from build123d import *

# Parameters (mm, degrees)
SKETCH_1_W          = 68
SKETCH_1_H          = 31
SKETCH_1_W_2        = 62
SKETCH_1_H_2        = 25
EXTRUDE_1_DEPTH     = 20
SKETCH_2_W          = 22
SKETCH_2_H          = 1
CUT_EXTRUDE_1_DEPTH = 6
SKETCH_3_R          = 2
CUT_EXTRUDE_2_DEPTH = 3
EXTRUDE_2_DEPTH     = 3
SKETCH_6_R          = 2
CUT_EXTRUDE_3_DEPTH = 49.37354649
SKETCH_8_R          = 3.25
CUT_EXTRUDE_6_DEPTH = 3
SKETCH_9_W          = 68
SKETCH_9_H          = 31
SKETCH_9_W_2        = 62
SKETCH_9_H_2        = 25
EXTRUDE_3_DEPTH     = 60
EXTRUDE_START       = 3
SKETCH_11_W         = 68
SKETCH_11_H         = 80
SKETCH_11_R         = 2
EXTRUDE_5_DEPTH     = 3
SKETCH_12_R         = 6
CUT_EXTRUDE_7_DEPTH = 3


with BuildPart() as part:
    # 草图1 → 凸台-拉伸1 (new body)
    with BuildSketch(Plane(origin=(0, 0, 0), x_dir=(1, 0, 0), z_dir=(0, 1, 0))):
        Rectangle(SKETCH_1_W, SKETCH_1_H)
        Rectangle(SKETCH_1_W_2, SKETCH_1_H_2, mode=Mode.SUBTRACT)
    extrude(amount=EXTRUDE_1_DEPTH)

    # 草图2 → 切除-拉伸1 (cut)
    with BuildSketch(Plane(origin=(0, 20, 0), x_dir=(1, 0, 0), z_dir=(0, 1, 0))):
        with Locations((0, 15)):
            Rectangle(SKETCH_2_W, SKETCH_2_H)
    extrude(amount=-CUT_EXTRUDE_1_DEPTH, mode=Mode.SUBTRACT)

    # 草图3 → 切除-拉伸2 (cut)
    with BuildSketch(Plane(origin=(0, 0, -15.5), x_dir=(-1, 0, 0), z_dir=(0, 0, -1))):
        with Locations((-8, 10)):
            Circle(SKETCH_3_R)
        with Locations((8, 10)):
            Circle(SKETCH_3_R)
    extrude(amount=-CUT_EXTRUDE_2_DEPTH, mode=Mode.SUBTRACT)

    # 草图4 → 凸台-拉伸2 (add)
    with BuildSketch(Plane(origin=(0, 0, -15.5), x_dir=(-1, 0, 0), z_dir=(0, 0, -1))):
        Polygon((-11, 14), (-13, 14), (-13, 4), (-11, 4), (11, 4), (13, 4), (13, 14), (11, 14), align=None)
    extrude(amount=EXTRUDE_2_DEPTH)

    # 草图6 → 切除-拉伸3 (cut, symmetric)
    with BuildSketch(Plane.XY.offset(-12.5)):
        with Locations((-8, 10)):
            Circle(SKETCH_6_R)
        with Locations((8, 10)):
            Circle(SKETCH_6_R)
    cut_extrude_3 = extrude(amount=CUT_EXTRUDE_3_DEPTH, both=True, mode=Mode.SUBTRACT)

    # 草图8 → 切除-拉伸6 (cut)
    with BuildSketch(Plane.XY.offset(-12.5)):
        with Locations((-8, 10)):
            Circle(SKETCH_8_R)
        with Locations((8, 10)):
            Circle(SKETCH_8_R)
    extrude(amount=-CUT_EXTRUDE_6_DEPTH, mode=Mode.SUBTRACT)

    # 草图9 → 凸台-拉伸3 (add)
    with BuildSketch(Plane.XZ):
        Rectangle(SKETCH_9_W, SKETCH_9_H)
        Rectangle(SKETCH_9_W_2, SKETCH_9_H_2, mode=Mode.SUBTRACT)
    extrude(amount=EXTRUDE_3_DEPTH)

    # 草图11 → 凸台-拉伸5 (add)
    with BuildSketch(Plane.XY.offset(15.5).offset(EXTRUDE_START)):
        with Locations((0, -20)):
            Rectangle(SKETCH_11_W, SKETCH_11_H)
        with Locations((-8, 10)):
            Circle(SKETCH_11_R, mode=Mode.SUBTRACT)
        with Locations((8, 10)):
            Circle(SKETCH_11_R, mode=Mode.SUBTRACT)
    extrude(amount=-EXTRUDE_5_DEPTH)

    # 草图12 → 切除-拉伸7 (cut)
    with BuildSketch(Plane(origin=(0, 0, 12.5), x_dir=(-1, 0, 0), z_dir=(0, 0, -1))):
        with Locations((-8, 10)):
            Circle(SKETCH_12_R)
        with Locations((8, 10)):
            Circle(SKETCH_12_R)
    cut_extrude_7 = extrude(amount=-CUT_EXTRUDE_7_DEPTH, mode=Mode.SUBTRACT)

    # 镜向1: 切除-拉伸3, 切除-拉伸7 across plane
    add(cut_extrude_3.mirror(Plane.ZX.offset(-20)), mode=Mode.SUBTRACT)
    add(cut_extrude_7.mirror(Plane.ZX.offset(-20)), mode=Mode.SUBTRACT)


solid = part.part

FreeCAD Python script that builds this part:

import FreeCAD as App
import Part
import Sketcher
Q = App.Units.Quantity


def add_polygon(sketch, points):
    """Adds a closed chain of lines whose ends are joined by coincident constraints."""
    first, n = sketch.GeometryCount, len(points)
    for a, b in zip(points, points[1:] + points[:1]):
        sketch.addGeometry(Part.LineSegment(App.Vector(*a, 0), App.Vector(*b, 0)), False)
    for i in range(n):
        sketch.addConstraint(Sketcher.Constraint("Coincident", first + i, 2, first + (i + 1) % n, 1))

doc = App.newDocument("Part")
body = doc.addObject("PartDesign::Body", "Body")

# Sketch on XZ plane
sketch1 = doc.addObject("Sketcher::SketchObject", "Sketch")
body.addObject(sketch1)
sketch1.AttachmentSupport = (doc.XZ_Plane, [""])
sketch1.MapMode = "FlatFace"
add_polygon(sketch1, [(-34, -15.5), (-34, 15.5), (34, 15.5), (34, -15.5)])  # lines 0-3
add_polygon(sketch1, [(31, 12.5), (-31, 12.5), (-31, -12.5), (31, -12.5)])  # lines 4-7
sketch1.addConstraint(Sketcher.Constraint("Vertical", 0))
sketch1.addConstraint(Sketcher.Constraint("Horizontal", 1))
sketch1.addConstraint(Sketcher.Constraint("Vertical", 2))
sketch1.addConstraint(Sketcher.Constraint("Horizontal", 3))
sketch1.addConstraint(Sketcher.Constraint("Horizontal", 4))
sketch1.addConstraint(Sketcher.Constraint("Vertical", 5))
sketch1.addConstraint(Sketcher.Constraint("Horizontal", 6))
sketch1.addConstraint(Sketcher.Constraint("Vertical", 7))
sketch1.addConstraint(Sketcher.Constraint("Symmetric", 0, 2, 2, 2, -1, 1))
sketch1.addConstraint(Sketcher.Constraint("Symmetric", 4, 2, 6, 2, -1, 1))
sketch1.addConstraint(Sketcher.Constraint("DistanceX", 1, 1, 1, 2, Q("68 mm")))
sketch1.addConstraint(Sketcher.Constraint("DistanceX", 4, 2, 4, 1, Q("62 mm")))
sketch1.addConstraint(Sketcher.Constraint("DistanceY", 0, 1, 0, 2, Q("31 mm")))
sketch1.addConstraint(Sketcher.Constraint("DistanceY", 5, 2, 5, 1, Q("25 mm")))
pad1 = doc.addObject("PartDesign::Pad", "Pad")
body.addObject(pad1)
pad1.Profile = sketch1
pad1.Length = 20
pad1.Reversed = True

# Sketch on XZ plane
sketch2 = doc.addObject("Sketcher::SketchObject", "Sketch001")
body.addObject(sketch2)
sketch2.AttachmentSupport = (doc.XZ_Plane, [""])
sketch2.MapMode = "FlatFace"
sketch2.AttachmentOffset = App.Placement(App.Vector(0, 0, -20), App.Rotation())
add_polygon(sketch2, [(-11, -15.5), (-11, -14.5), (11, -14.5), (11, -15.5)])  # lines 0-3
sketch2.addConstraint(Sketcher.Constraint("Vertical", 0))
sketch2.addConstraint(Sketcher.Constraint("Horizontal", 1))
sketch2.addConstraint(Sketcher.Constraint("Vertical", 2))
sketch2.addConstraint(Sketcher.Constraint("Horizontal", 3))
sketch2.addConstraint(Sketcher.Constraint("DistanceX", 1, 1, 1, 2, Q("22 mm")))
sketch2.addConstraint(Sketcher.Constraint("DistanceY", 0, 1, 0, 2, Q("1 mm")))
sketch2.addConstraint(Sketcher.Constraint("DistanceX", 0, 2, -1, 1, Q("11 mm")))
sketch2.addConstraint(Sketcher.Constraint("DistanceY", 0, 2, -1, 1, Q("14.5 mm")))
pocket1 = doc.addObject("PartDesign::Pocket", "Pocket")
body.addObject(pocket1)
pocket1.Profile = sketch2
pocket1.Length = 6
pocket1.Reversed = True

# Sketch on XY plane
sketch3 = doc.addObject("Sketcher::SketchObject", "Sketch002")
body.addObject(sketch3)
sketch3.AttachmentSupport = (doc.XY_Plane, [""])
sketch3.MapMode = "FlatFace"
sketch3.AttachmentOffset = App.Placement(App.Vector(0, 0, -15.5), App.Rotation())
sketch3.addGeometry(Part.Circle(App.Vector(8, 10, 0), App.Vector(0, 0, 1), 2), False)
sketch3.addGeometry(Part.Circle(App.Vector(-8, 10, 0), App.Vector(0, 0, 1), 2), False)
sketch3.addConstraint(Sketcher.Constraint("Equal", 0, 1))
sketch3.addConstraint(Sketcher.Constraint("Symmetric", 0, 3, 1, 3, -2))
sketch3.addConstraint(Sketcher.Constraint("Diameter", 0, Q("4 mm")))
sketch3.addConstraint(Sketcher.Constraint("DistanceX", -1, 1, 0, 3, Q("8 mm")))
sketch3.addConstraint(Sketcher.Constraint("DistanceY", -1, 1, 0, 3, Q("10 mm")))
pocket2 = doc.addObject("PartDesign::Pocket", "Pocket001")
body.addObject(pocket2)
pocket2.Profile = sketch3
pocket2.Length = 3
pocket2.Reversed = True

# Sketch on XY plane
sketch4 = doc.addObject("Sketcher::SketchObject", "Sketch003")
body.addObject(sketch4)
sketch4.AttachmentSupport = (doc.XY_Plane, [""])
sketch4.MapMode = "FlatFace"
sketch4.AttachmentOffset = App.Placement(App.Vector(0, 0, -15.5), App.Rotation())
add_polygon(sketch4, [(13, 14), (13, 4), (-13, 4), (-13, 14)])  # lines 0-3
sketch4.addConstraint(Sketcher.Constraint("Vertical", 0))
sketch4.addConstraint(Sketcher.Constraint("Horizontal", 1))
sketch4.addConstraint(Sketcher.Constraint("Vertical", 2))
sketch4.addConstraint(Sketcher.Constraint("Horizontal", 3))
sketch4.addConstraint(Sketcher.Constraint("DistanceX", 1, 2, 1, 1, Q("26 mm")))
sketch4.addConstraint(Sketcher.Constraint("DistanceY", 0, 2, 0, 1, Q("10 mm")))
sketch4.addConstraint(Sketcher.Constraint("DistanceX", -1, 1, 0, 2, Q("13 mm")))
sketch4.addConstraint(Sketcher.Constraint("DistanceY", -1, 1, 0, 2, Q("4 mm")))
pad2 = doc.addObject("PartDesign::Pad", "Pad001")
body.addObject(pad2)
pad2.Profile = sketch4
pad2.Length = 3
pad2.Reversed = True

# Sketch on XY plane
sketch5 = doc.addObject("Sketcher::SketchObject", "Sketch004")
body.addObject(sketch5)
sketch5.AttachmentSupport = (doc.XY_Plane, [""])
sketch5.MapMode = "FlatFace"
sketch5.AttachmentOffset = App.Placement(App.Vector(0, 0, -12.5), App.Rotation())
sketch5.addGeometry(Part.Circle(App.Vector(-8, 10, 0), App.Vector(0, 0, 1), 2), False)
sketch5.addGeometry(Part.Circle(App.Vector(8, 10, 0), App.Vector(0, 0, 1), 2), False)
sketch5.addConstraint(Sketcher.Constraint("Equal", 0, 1))
sketch5.addConstraint(Sketcher.Constraint("Symmetric", 0, 3, 1, 3, -2))
sketch5.addConstraint(Sketcher.Constraint("Diameter", 0, Q("4 mm")))
sketch5.addConstraint(Sketcher.Constraint("DistanceX", 0, 3, -1, 1, Q("8 mm")))
sketch5.addConstraint(Sketcher.Constraint("DistanceY", -1, 1, 0, 3, Q("10 mm")))
pocket3 = doc.addObject("PartDesign::Pocket", "Pocket002")
body.addObject(pocket3)
pocket3.Profile = sketch5
pocket3.Length = 98.747093
pocket3.Midplane = True

# Sketch on XY plane
sketch6 = doc.addObject("Sketcher::SketchObject", "Sketch005")
body.addObject(sketch6)
sketch6.AttachmentSupport = (doc.XY_Plane, [""])
sketch6.MapMode = "FlatFace"
sketch6.AttachmentOffset = App.Placement(App.Vector(0, 0, -12.5), App.Rotation())
sketch6.addGeometry(Part.Circle(App.Vector(-8, 10, 0), App.Vector(0, 0, 1), 3.25), False)
sketch6.addGeometry(Part.Circle(App.Vector(8, 10, 0), App.Vector(0, 0, 1), 3.25), False)
sketch6.addConstraint(Sketcher.Constraint("Equal", 0, 1))
sketch6.addConstraint(Sketcher.Constraint("Symmetric", 0, 3, 1, 3, -2))
sketch6.addConstraint(Sketcher.Constraint("Diameter", 0, Q("6.5 mm")))
sketch6.addConstraint(Sketcher.Constraint("DistanceX", 0, 3, -1, 1, Q("8 mm")))
sketch6.addConstraint(Sketcher.Constraint("DistanceY", -1, 1, 0, 3, Q("10 mm")))
pocket4 = doc.addObject("PartDesign::Pocket", "Pocket003")
body.addObject(pocket4)
pocket4.Profile = sketch6
pocket4.Length = 3

# Sketch on XZ plane
sketch7 = doc.addObject("Sketcher::SketchObject", "Sketch006")
body.addObject(sketch7)
sketch7.AttachmentSupport = (doc.XZ_Plane, [""])
sketch7.MapMode = "FlatFace"
add_polygon(sketch7, [(-34, 15.5), (-34, -15.5), (34, -15.5), (34, 15.5)])  # lines 0-3
add_polygon(sketch7, [(31, -12.5), (-31, -12.5), (-31, 12.5), (31, 12.5)])  # lines 4-7
sketch7.addConstraint(Sketcher.Constraint("Vertical", 0))
sketch7.addConstraint(Sketcher.Constraint("Horizontal", 1))
sketch7.addConstraint(Sketcher.Constraint("Vertical", 2))
sketch7.addConstraint(Sketcher.Constraint("Horizontal", 3))
sketch7.addConstraint(Sketcher.Constraint("Horizontal", 4))
sketch7.addConstraint(Sketcher.Constraint("Vertical", 5))
sketch7.addConstraint(Sketcher.Constraint("Horizontal", 6))
sketch7.addConstraint(Sketcher.Constraint("Vertical", 7))
sketch7.addConstraint(Sketcher.Constraint("Symmetric", 0, 2, 2, 2, -1, 1))
sketch7.addConstraint(Sketcher.Constraint("Symmetric", 4, 2, 6, 2, -1, 1))
sketch7.addConstraint(Sketcher.Constraint("DistanceX", 1, 1, 1, 2, Q("68 mm")))
sketch7.addConstraint(Sketcher.Constraint("DistanceX", 4, 2, 4, 1, Q("62 mm")))
sketch7.addConstraint(Sketcher.Constraint("DistanceY", 0, 2, 0, 1, Q("31 mm")))
sketch7.addConstraint(Sketcher.Constraint("DistanceY", 5, 1, 5, 2, Q("25 mm")))
pad3 = doc.addObject("PartDesign::Pad", "Pad002")
body.addObject(pad3)
pad3.Profile = sketch7
pad3.Length = 60

# Sketch on XY plane
sketch8 = doc.addObject("Sketcher::SketchObject", "Sketch007")
body.addObject(sketch8)
sketch8.AttachmentSupport = (doc.XY_Plane, [""])
sketch8.MapMode = "FlatFace"
sketch8.AttachmentOffset = App.Placement(App.Vector(0, 0, 18.5), App.Rotation())
add_polygon(sketch8, [(-34, 20), (-34, -60), (34, -60), (34, 20)])  # lines 0-3
sketch8.addGeometry(Part.Circle(App.Vector(-8, 10, 0), App.Vector(0, 0, 1), 2), False)  # 4
sketch8.addGeometry(Part.Circle(App.Vector(8, 10, 0), App.Vector(0, 0, 1), 2), False)  # 5
sketch8.addConstraint(Sketcher.Constraint("Vertical", 0))
sketch8.addConstraint(Sketcher.Constraint("Horizontal", 1))
sketch8.addConstraint(Sketcher.Constraint("Vertical", 2))
sketch8.addConstraint(Sketcher.Constraint("Horizontal", 3))
sketch8.addConstraint(Sketcher.Constraint("Equal", 4, 5))
sketch8.addConstraint(Sketcher.Constraint("Symmetric", 4, 3, 5, 3, -2))
sketch8.addConstraint(Sketcher.Constraint("Diameter", 4, Q("4 mm")))
sketch8.addConstraint(Sketcher.Constraint("DistanceX", 1, 1, 1, 2, Q("68 mm")))
sketch8.addConstraint(Sketcher.Constraint("DistanceY", 0, 2, 0, 1, Q("80 mm")))
sketch8.addConstraint(Sketcher.Constraint("DistanceX", 4, 3, -1, 1, Q("8 mm")))
sketch8.addConstraint(Sketcher.Constraint("DistanceY", -1, 1, 4, 3, Q("10 mm")))
sketch8.addConstraint(Sketcher.Constraint("DistanceX", 0, 2, -1, 1, Q("34 mm")))
sketch8.addConstraint(Sketcher.Constraint("DistanceY", 0, 2, -1, 1, Q("60 mm")))
pad4 = doc.addObject("PartDesign::Pad", "Pad003")
body.addObject(pad4)
pad4.Profile = sketch8
pad4.Length = 3
pad4.Reversed = True

# Sketch on XY plane
sketch9 = doc.addObject("Sketcher::SketchObject", "Sketch008")
body.addObject(sketch9)
sketch9.AttachmentSupport = (doc.XY_Plane, [""])
sketch9.MapMode = "FlatFace"
sketch9.AttachmentOffset = App.Placement(App.Vector(0, 0, 12.5), App.Rotation())
sketch9.addGeometry(Part.Circle(App.Vector(8, 10, 0), App.Vector(0, 0, 1), 6), False)
sketch9.addGeometry(Part.Circle(App.Vector(-8, 10, 0), App.Vector(0, 0, 1), 6), False)
sketch9.addConstraint(Sketcher.Constraint("Equal", 0, 1))
sketch9.addConstraint(Sketcher.Constraint("Symmetric", 0, 3, 1, 3, -2))
sketch9.addConstraint(Sketcher.Constraint("Diameter", 0, Q("12 mm")))
sketch9.addConstraint(Sketcher.Constraint("DistanceX", -1, 1, 0, 3, Q("8 mm")))
sketch9.addConstraint(Sketcher.Constraint("DistanceY", -1, 1, 0, 3, Q("10 mm")))
pocket5 = doc.addObject("PartDesign::Pocket", "Pocket004")
body.addObject(pocket5)
pocket5.Profile = sketch9
pocket5.Length = 3
pocket5.Reversed = True
doc.recompute()

datumplane = doc.addObject("PartDesign::Plane", "DatumPlane")
body.addObject(datumplane)
datumplane.AttachmentSupport = (doc.XZ_Plane, [""])
datumplane.MapMode = "FlatFace"
datumplane.AttachmentOffset = App.Placement(App.Vector(0, 0, 20), App.Rotation())
mirrored = doc.addObject("PartDesign::Mirrored", "Mirrored")
body.addObject(mirrored)
mirrored.Originals = [pocket3, pocket5]
mirrored.MirrorPlane = (datumplane, [""])
body.Tip = mirrored

doc.recompute()
